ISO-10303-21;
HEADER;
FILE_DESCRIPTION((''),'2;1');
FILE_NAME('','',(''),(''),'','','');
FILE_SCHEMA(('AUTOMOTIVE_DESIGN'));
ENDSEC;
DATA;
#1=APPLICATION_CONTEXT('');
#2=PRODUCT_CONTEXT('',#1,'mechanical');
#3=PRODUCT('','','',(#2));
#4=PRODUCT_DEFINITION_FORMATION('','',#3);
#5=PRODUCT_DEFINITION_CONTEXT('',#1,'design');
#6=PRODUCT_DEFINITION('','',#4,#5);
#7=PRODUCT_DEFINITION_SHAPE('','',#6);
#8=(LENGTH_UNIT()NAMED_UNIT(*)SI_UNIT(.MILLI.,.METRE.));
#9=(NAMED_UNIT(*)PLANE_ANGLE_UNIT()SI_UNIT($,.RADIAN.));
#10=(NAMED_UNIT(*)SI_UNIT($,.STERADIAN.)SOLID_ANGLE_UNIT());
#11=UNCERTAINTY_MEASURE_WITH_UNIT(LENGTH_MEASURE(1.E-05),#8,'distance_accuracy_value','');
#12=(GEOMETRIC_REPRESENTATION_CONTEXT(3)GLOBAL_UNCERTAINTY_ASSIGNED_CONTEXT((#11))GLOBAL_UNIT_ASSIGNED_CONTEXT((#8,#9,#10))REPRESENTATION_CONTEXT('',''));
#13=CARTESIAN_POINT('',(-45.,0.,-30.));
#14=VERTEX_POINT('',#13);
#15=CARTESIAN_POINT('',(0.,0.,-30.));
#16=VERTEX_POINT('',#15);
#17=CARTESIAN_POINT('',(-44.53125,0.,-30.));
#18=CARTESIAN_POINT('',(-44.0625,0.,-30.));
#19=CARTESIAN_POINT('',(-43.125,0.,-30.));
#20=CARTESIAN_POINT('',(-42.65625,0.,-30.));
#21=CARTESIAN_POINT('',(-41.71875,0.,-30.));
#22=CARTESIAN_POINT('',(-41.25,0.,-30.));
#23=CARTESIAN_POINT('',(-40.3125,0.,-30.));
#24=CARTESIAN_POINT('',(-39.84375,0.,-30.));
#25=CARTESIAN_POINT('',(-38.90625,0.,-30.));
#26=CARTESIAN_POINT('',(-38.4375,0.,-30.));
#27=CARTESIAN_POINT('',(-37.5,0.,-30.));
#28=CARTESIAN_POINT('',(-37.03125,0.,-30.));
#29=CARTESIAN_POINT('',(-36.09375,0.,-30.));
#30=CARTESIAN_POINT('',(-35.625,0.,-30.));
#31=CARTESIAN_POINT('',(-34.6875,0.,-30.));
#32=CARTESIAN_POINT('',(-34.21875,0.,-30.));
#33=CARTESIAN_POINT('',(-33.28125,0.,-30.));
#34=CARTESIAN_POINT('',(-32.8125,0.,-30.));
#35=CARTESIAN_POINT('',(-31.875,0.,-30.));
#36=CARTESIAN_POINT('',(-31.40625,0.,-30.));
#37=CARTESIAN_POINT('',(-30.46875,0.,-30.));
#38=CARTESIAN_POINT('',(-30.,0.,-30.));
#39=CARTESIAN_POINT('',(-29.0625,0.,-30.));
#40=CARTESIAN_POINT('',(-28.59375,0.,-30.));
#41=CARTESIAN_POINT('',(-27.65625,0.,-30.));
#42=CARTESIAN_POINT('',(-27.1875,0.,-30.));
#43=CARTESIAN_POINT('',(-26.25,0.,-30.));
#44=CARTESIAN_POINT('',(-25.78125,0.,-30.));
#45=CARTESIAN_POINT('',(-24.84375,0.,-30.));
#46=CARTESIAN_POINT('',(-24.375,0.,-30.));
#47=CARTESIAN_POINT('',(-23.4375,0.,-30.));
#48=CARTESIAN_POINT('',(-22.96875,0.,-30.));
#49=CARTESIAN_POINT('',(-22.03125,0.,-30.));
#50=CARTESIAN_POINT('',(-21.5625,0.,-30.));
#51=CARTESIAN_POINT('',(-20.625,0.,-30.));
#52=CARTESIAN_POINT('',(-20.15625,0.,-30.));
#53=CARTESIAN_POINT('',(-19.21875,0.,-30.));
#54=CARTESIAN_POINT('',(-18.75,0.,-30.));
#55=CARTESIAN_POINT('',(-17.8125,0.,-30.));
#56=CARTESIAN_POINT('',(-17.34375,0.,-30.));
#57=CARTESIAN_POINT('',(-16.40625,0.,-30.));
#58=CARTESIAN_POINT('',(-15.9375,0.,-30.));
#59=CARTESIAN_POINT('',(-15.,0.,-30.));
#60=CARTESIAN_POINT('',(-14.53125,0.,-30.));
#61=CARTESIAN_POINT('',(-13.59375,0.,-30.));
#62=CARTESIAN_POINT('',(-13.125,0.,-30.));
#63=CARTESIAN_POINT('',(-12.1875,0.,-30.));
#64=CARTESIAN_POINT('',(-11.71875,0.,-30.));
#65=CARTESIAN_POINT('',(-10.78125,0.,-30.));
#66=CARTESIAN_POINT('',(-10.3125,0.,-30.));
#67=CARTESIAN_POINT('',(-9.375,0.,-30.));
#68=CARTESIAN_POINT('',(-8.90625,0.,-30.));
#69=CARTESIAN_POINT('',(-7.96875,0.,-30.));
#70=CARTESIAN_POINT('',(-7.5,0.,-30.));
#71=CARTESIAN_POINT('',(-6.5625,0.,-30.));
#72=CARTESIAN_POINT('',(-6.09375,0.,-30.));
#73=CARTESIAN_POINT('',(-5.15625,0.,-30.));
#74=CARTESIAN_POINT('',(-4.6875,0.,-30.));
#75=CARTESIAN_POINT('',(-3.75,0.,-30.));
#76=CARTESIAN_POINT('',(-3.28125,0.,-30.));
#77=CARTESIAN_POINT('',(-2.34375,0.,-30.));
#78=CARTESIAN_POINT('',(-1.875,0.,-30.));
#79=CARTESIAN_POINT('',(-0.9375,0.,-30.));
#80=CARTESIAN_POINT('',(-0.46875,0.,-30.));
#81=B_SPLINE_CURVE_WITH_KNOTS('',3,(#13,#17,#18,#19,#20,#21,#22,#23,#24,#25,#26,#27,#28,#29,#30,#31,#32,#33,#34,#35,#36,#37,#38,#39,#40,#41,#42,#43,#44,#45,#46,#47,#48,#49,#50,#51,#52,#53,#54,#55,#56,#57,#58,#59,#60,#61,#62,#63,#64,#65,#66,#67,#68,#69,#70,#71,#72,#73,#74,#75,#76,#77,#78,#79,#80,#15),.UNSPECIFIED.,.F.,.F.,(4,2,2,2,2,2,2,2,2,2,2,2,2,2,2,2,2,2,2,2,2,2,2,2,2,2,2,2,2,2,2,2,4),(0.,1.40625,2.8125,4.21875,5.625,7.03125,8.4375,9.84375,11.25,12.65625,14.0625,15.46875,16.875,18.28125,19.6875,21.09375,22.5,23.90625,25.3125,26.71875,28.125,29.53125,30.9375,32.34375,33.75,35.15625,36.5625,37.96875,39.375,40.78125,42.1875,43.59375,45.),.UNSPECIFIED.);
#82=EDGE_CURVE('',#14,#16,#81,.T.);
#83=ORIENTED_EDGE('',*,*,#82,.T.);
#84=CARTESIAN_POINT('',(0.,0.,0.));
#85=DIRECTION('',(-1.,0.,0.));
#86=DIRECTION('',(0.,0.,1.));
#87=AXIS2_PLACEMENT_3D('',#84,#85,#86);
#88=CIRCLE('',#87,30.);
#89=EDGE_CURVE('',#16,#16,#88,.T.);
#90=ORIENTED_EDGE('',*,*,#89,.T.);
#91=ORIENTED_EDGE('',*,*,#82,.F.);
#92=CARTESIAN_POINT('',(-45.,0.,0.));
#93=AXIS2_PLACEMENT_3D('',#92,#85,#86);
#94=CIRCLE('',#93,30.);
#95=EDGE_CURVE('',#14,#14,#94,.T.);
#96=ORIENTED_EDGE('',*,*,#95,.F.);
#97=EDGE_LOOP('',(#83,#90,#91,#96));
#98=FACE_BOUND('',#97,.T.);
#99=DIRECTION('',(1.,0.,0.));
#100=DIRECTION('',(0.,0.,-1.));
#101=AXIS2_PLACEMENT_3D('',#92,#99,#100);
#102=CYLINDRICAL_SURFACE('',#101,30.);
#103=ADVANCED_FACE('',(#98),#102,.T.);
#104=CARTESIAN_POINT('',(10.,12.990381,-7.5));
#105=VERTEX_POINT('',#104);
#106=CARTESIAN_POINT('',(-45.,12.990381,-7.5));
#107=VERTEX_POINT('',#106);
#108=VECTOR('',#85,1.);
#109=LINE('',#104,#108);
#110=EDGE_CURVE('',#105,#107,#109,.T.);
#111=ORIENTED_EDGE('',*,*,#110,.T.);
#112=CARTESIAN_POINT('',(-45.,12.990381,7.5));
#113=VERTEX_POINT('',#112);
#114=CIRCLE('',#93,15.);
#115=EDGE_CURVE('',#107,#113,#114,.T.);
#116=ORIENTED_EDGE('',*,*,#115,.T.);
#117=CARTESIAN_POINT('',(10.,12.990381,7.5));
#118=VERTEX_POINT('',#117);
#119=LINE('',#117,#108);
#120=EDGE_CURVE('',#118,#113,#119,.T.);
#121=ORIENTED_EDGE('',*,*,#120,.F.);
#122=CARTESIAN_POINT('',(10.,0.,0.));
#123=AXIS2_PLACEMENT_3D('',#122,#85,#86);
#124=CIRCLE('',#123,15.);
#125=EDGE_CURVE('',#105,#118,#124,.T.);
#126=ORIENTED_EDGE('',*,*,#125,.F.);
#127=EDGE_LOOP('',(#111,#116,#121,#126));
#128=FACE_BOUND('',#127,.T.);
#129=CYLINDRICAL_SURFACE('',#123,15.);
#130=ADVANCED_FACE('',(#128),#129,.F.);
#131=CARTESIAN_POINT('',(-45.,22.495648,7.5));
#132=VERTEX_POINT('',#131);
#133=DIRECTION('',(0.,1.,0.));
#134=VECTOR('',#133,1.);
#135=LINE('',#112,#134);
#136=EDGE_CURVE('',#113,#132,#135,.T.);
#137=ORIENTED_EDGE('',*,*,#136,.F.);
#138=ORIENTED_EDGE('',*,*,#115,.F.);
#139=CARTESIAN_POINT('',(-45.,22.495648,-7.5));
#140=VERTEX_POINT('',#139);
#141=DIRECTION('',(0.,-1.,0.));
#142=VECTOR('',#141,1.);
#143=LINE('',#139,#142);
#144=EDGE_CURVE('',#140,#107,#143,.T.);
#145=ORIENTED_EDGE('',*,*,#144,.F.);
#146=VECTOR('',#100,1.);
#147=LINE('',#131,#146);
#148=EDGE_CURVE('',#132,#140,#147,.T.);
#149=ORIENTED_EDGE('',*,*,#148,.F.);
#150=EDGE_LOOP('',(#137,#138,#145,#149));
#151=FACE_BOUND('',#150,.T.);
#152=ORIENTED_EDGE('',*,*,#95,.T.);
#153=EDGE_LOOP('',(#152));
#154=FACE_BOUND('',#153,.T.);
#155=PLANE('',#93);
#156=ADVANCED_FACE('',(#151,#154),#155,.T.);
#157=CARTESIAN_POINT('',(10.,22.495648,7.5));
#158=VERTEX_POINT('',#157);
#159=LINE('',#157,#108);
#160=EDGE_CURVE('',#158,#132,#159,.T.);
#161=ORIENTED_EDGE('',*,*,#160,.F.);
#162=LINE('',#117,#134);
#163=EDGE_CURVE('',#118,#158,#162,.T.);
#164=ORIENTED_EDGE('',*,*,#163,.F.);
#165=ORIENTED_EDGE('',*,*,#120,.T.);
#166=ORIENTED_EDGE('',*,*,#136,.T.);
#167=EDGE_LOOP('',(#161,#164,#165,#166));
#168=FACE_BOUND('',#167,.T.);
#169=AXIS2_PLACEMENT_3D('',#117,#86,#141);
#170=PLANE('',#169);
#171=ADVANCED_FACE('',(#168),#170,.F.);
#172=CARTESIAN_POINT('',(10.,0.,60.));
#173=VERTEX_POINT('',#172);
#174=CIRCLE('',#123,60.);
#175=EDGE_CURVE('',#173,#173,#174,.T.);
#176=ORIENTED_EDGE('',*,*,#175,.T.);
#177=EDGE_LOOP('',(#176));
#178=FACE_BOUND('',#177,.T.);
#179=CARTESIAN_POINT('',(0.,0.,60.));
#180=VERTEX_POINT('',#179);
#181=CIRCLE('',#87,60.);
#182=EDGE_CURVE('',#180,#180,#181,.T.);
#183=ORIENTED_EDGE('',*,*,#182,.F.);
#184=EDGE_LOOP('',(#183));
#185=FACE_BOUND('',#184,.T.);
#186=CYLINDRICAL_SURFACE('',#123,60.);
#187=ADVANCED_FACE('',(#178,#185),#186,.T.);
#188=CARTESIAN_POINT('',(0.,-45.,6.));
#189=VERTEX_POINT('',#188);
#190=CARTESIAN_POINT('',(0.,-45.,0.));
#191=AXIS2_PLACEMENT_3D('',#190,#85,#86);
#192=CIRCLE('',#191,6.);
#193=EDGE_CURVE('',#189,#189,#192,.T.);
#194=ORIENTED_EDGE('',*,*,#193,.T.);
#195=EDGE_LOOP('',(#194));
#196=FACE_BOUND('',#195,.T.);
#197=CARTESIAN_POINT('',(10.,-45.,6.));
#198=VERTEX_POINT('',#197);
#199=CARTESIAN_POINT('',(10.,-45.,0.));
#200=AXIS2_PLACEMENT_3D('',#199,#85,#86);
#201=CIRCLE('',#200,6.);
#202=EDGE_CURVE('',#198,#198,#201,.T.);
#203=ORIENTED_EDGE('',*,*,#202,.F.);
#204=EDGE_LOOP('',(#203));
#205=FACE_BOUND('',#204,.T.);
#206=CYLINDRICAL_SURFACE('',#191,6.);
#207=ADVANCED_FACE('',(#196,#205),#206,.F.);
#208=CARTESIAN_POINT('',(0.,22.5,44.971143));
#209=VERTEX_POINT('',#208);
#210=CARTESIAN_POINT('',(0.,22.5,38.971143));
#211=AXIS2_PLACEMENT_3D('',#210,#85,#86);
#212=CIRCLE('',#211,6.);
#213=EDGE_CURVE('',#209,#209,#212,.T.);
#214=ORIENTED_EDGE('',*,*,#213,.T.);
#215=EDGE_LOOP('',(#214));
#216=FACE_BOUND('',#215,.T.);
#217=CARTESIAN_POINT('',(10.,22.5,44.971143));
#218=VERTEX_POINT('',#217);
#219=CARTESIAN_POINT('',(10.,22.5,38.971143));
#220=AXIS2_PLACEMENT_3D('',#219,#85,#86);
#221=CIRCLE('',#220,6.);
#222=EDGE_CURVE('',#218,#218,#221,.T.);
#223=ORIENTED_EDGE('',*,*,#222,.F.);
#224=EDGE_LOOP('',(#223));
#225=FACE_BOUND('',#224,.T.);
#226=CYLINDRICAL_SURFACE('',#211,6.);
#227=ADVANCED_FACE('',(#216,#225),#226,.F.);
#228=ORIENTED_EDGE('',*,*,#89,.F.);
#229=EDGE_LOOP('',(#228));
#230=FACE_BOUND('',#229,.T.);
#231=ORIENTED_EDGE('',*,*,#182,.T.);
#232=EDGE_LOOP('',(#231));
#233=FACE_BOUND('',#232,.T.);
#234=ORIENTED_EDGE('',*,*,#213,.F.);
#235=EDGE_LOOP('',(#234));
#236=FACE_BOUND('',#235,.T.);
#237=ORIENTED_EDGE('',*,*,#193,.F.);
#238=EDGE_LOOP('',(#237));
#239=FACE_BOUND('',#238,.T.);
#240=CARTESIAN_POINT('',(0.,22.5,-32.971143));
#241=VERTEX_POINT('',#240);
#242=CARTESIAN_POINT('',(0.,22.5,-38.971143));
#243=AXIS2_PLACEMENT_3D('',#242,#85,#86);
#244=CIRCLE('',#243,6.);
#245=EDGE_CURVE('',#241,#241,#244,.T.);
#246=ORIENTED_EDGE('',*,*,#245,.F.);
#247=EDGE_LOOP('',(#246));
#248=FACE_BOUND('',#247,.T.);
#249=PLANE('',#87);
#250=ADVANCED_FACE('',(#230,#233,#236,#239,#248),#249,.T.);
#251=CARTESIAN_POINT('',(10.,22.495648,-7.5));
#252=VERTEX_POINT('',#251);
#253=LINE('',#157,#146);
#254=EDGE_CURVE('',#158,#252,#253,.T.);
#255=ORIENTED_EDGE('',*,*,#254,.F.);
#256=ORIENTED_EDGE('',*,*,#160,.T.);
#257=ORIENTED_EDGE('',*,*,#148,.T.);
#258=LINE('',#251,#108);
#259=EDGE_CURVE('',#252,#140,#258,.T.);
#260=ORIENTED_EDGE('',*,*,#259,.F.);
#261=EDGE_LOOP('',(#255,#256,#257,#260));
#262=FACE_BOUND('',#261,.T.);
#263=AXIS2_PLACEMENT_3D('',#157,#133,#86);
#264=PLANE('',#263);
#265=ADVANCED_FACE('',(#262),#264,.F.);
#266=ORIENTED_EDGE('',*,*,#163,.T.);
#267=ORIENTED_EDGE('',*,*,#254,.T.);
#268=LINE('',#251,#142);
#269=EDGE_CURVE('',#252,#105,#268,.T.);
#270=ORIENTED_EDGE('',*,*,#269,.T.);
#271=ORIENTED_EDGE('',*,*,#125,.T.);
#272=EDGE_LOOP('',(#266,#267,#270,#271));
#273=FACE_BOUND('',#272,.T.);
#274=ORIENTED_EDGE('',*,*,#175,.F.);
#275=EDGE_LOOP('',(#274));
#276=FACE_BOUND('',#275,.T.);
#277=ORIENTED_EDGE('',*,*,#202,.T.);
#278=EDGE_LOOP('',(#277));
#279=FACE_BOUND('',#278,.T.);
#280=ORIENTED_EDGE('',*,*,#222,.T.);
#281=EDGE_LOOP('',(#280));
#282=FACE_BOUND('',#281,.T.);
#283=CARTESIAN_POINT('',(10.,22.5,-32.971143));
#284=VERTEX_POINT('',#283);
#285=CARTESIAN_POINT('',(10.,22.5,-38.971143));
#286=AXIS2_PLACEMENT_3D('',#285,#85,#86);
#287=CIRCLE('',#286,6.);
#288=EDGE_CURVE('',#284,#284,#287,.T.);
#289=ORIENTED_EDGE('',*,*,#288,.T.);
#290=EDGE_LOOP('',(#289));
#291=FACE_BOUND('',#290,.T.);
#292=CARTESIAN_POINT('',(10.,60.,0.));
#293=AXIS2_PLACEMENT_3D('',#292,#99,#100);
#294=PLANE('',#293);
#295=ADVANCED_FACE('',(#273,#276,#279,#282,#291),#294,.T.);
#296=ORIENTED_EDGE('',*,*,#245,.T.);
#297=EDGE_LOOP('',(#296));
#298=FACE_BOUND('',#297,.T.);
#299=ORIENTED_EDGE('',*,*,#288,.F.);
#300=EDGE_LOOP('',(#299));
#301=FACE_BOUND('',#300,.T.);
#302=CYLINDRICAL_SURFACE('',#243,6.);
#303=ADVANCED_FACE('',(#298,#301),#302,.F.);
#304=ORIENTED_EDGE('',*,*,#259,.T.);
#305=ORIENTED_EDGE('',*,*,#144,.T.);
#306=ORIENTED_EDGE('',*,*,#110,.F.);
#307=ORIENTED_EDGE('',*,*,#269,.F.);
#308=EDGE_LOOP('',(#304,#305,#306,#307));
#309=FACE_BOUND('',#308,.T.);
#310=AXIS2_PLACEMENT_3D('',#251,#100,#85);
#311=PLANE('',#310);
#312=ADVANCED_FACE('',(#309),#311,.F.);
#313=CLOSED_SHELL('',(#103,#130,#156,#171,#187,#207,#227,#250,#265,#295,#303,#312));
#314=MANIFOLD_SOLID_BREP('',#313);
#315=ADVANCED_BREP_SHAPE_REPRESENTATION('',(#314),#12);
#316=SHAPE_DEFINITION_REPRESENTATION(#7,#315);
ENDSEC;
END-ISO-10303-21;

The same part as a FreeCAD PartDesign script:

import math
import FreeCAD as App
import Part
import Sketcher
Q = App.Units.Quantity

doc = App.newDocument("Part")
body = doc.addObject("PartDesign::Body", "Body")

# Sketch on XY plane
sketch1 = body.newObject("Sketcher::SketchObject", "Sketch")
sketch1.AttachmentSupport = (doc.getObject("XY_Plane"), [""])
sketch1.MapMode = "FlatFace"
sketch1.addGeometry([
    Part.LineSegment(App.Vector(10, 60, 0), App.Vector(10, 0, 0)),
    Part.LineSegment(App.Vector(10, 0, 0), App.Vector(0, 0, 0)),
    Part.LineSegment(App.Vector(0, 0, 0), App.Vector(0, 60, 0)),
    Part.LineSegment(App.Vector(0, 60, 0), App.Vector(10, 60, 0)),
], False)
sketch1.addConstraint([
    Sketcher.Constraint("Coincident", 0, 2, 1, 1),
    Sketcher.Constraint("Coincident", 1, 2, 2, 1),
    Sketcher.Constraint("Coincident", 2, 2, 3, 1),
    Sketcher.Constraint("Coincident", 3, 2, 0, 1),
    Sketcher.Constraint("Vertical", 0),
    Sketcher.Constraint("Horizontal", 1),
    Sketcher.Constraint("Vertical", 2),
    Sketcher.Constraint("Horizontal", 3),
    Sketcher.Constraint("Coincident", 1, 2, -1, 1),
    Sketcher.Constraint("DistanceX", 1, 2, 1, 1, Q("10 mm")),
    Sketcher.Constraint("DistanceY", 0, 2, 0, 1, Q("60 mm")),
])
revolution = body.newObject("PartDesign::Revolution", "Revolution")
revolution.Profile = sketch1
revolution.ReferenceAxis = (sketch1, ["H_Axis"])
revolution.Angle = 360

# Sketch on YZ plane
sketch2 = body.newObject("Sketcher::SketchObject", "Sketch001")
sketch2.AttachmentSupport = (doc.getObject("YZ_Plane"), [""])
sketch2.MapMode = "FlatFace"
sketch2.addGeometry(Part.Circle(App.Vector(0, 0, 0), App.Vector(0, 0, 1), 30), False)
sketch2.addConstraint([
    Sketcher.Constraint("Coincident", 0, 3, -1, 1),
    Sketcher.Constraint("Diameter", 0, Q("60 mm")),
])
pad1 = body.newObject("PartDesign::Pad", "Pad")
pad1.Profile = sketch2
pad1.Length = 45
pad1.Reversed = True

# Sketch on YZ plane
sketch3 = body.newObject("Sketcher::SketchObject", "Sketch002")
sketch3.AttachmentSupport = (doc.getObject("YZ_Plane"), [""])
sketch3.MapMode = "FlatFace"
sketch3.AttachmentOffset = App.Placement(App.Vector(0, 0, -45), App.Rotation())
sketch3.addGeometry([
    Part.LineSegment(App.Vector(22.495648, -7.5, 0), App.Vector(12.990381, -7.5, 0)),
    Part.ArcOfCircle(Part.Circle(App.Vector(0, 0, 0), App.Vector(0, 0, 1), 15), math.radians(-30), math.radians(30)),
    Part.LineSegment(App.Vector(12.990381, 7.5, 0), App.Vector(22.495648, 7.5, 0)),
    Part.LineSegment(App.Vector(22.495648, 7.5, 0), App.Vector(22.495648, -7.5, 0)),
], False)
sketch3.addConstraint([
    Sketcher.Constraint("Coincident", 0, 2, 1, 1),
    Sketcher.Constraint("Coincident", 1, 2, 2, 1),
    Sketcher.Constraint("Coincident", 2, 2, 3, 1),
    Sketcher.Constraint("Coincident", 3, 2, 0, 1),
    Sketcher.Constraint("Horizontal", 0),
    Sketcher.Constraint("Horizontal", 2),
    Sketcher.Constraint("Vertical", 3),
    Sketcher.Constraint("Coincident", 1, 3, -1, 1),
    Sketcher.Constraint("Vertical", 0, 2, 1, 2),
    Sketcher.Constraint("Radius", 1, Q("15 mm")),
    Sketcher.Constraint("DistanceY", 3, 2, 3, 1, Q("15 mm")),
    Sketcher.Constraint("DistanceX", 0, 2, 0, 1, Q("9.505267 mm")),
])
pocket1 = body.newObject("PartDesign::Pocket", "Pocket")
pocket1.Profile = sketch3
pocket1.Type = "ThroughAll"
pocket1.Reversed = True

# Sketch on XY plane
sketch4 = body.newObject("Sketcher::SketchObject", "Sketch003")
sketch4.AttachmentSupport = (doc.getObject("XY_Plane"), [""])
sketch4.MapMode = "FlatFace"
sketch4.addGeometry([
    Part.LineSegment(App.Vector(10, 15, 0), App.Vector(10, 0, 0)),
    Part.LineSegment(App.Vector(10, 0, 0), App.Vector(-45, 0, 0)),
    Part.LineSegment(App.Vector(-45, 0, 0), App.Vector(-45, 15, 0)),
    Part.LineSegment(App.Vector(-45, 15, 0), App.Vector(10, 15, 0)),
], False)
sketch4.addConstraint([
    Sketcher.Constraint("Coincident", 0, 2, 1, 1),
    Sketcher.Constraint("Coincident", 1, 2, 2, 1),
    Sketcher.Constraint("Coincident", 2, 2, 3, 1),
    Sketcher.Constraint("Coincident", 3, 2, 0, 1),
    Sketcher.Constraint("Vertical", 0),
    Sketcher.Constraint("Horizontal", 1),
    Sketcher.Constraint("Vertical", 2),
    Sketcher.Constraint("Horizontal", 3),
    Sketcher.Constraint("PointOnObject", 0, 2, -1),
    Sketcher.Constraint("DistanceX", 1, 2, 1, 1, Q("55 mm")),
    Sketcher.Constraint("DistanceY", 0, 2, 0, 1, Q("15 mm")),
    Sketcher.Constraint("DistanceX", -1, 1, 0, 2, Q("10 mm")),
])
groove = body.newObject("PartDesign::Groove", "Groove")
groove.Profile = sketch4
groove.ReferenceAxis = (sketch4, ["H_Axis"])
groove.Angle = 360

# Sketch on YZ plane
sketch5 = body.newObject("Sketcher::SketchObject", "Sketch004")
sketch5.AttachmentSupport = (doc.getObject("YZ_Plane"), [""])
sketch5.MapMode = "FlatFace"
sketch5.addGeometry([
    Part.Circle(App.Vector(22.5, -38.971143, 0), App.Vector(0, 0, 1), 6),
    Part.Circle(App.Vector(22.5, 38.971143, 0), App.Vector(0, 0, 1), 6),
    Part.Circle(App.Vector(-45, 0, 0), App.Vector(0, 0, 1), 6),
], False)
sketch5.addConstraint([
    Sketcher.Constraint("Equal", 0, 1),
    Sketcher.Constraint("Equal", 1, 2),
    Sketcher.Constraint("Symmetric", 0, 3, 1, 3, -1),
    Sketcher.Constraint("PointOnObject", 2, 3, -1),
    Sketcher.Constraint("Diameter", 0, Q("12 mm")),
    Sketcher.Constraint("DistanceX", 2, 3, -1, 1, Q("45 mm")),
    Sketcher.Constraint("DistanceX", -1, 1, 0, 3, Q("22.5 mm")),
    Sketcher.Constraint("DistanceY", 0, 3, -1, 1, Q("38.971143 mm")),
])
doc.recompute()
hole = body.newObject("PartDesign::Hole", "Hole")
hole.Profile = sketch5
hole.ThreadType = "None"
hole.Diameter = 12
hole.DepthType = "ThroughAll"
hole.Reversed = True

doc.recompute()
